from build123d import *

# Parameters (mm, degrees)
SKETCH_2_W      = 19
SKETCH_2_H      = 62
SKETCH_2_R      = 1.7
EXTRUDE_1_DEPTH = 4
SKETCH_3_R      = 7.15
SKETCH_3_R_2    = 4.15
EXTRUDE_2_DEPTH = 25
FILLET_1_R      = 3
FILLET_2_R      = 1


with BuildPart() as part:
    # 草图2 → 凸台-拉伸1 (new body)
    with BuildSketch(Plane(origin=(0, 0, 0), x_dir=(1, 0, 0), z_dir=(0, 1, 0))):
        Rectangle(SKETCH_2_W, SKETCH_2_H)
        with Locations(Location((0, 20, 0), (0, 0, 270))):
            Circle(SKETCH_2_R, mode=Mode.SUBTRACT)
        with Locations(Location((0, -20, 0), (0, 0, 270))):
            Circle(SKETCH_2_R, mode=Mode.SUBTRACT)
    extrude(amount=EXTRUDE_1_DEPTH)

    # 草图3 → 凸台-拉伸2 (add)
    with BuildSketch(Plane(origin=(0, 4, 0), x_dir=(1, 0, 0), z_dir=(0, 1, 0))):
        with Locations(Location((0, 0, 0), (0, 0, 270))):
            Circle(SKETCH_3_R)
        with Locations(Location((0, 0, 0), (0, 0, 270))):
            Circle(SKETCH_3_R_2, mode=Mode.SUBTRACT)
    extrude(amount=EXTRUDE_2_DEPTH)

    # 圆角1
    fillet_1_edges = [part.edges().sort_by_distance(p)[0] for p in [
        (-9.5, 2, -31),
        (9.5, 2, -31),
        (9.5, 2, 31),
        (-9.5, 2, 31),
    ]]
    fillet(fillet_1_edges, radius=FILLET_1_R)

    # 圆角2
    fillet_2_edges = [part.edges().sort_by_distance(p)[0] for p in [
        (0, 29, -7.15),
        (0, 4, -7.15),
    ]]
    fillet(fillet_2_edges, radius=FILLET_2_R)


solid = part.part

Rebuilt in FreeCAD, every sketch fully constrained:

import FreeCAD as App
import Part
import Sketcher

V = App.Vector


def edges_at(feature, points):
    """Names of the edges that pass closest to the given points."""
    edges = feature.Shape.Edges
    near = lambda p: min(range(len(edges)), key=lambda i: edges[i].distToShape(Part.Vertex(*p))[0])
    return sorted({f"Edge{near(p) + 1}" for p in points})


def add_polygon(sketch, points):
    """Adds a closed chain of lines whose ends are joined by coincident constraints."""
    first, n = sketch.GeometryCount, len(points)
    for a, b in zip(points, points[1:] + points[:1]):
        sketch.addGeometry(Part.LineSegment(App.Vector(*a, 0), App.Vector(*b, 0)), False)
    for i in range(n):
        sketch.addConstraint(Sketcher.Constraint("Coincident", first + i, 2, first + (i + 1) % n, 1))

doc = App.newDocument("Part")
body = doc.addObject("PartDesign::Body", "Body")

sketch1 = body.newObject("Sketcher::SketchObject", "Sketch")
sketch1.AttachmentSupport = (doc.getObject("XZ_Plane"), [""])
sketch1.MapMode = "FlatFace"
add_polygon(sketch1, [(-9.5, -31), (-9.5, 31), (9.5, 31), (9.5, -31)])
sketch1.addGeometry(Part.Circle(V(0, 20, 0), V(0, 0, 1), 1.7), False)
sketch1.addGeometry(Part.Circle(V(0, -20, 0), V(0, 0, 1), 1.7), False)
sketch1.addConstraint(Sketcher.Constraint("Vertical", 0))
sketch1.addConstraint(Sketcher.Constraint("Horizontal", 1))
sketch1.addConstraint(Sketcher.Constraint("Vertical", 2))
sketch1.addConstraint(Sketcher.Constraint("Horizontal", 3))
sketch1.addConstraint(Sketcher.Constraint("Equal", 4, 5))
sketch1.addConstraint(Sketcher.Constraint("Symmetric", 4, 3, 5, 3, -1, 1))
sketch1.addConstraint(Sketcher.Constraint("Symmetric", 0, 2, 2, 2, -1, 1))
sketch1.addConstraint(Sketcher.Constraint("PointOnObject", 4, 3, -2))
sketch1.addConstraint(Sketcher.Constraint("Diameter", 4, 3.4))
sketch1.addConstraint(Sketcher.Constraint("DistanceX", 1, 1, 1, 2, 19.0))
sketch1.addConstraint(Sketcher.Constraint("DistanceY", 0, 1, 0, 2, 62.0))
sketch1.addConstraint(Sketcher.Constraint("DistanceY", -1, 1, 4, 3, 20.0))
pad1 = body.newObject("PartDesign::Pad", "Pad")
pad1.Profile = sketch1
pad1.Length = 4
pad1.Reversed = True

sketch2 = body.newObject("Sketcher::SketchObject", "Sketch001")
sketch2.AttachmentSupport = (doc.getObject("XZ_Plane"), [""])
sketch2.MapMode = "FlatFace"
sketch2.AttachmentOffset = App.Placement(V(0, 0, -4), App.Rotation())
sketch2.addGeometry(Part.Circle(V(0, 0, 0), V(0, 0, 1), 7.2), False)
sketch2.addGeometry(Part.Circle(V(0, 0, 0), V(0, 0, 1), 4.2), False)
sketch2.addConstraint(Sketcher.Constraint("Coincident", 0, 3, -1, 1))
sketch2.addConstraint(Sketcher.Constraint("Coincident", 1, 3, -1, 1))
sketch2.addConstraint(Sketcher.Constraint("Diameter", 0, 14.3))
sketch2.addConstraint(Sketcher.Constraint("Diameter", 1, 8.3))
pad2 = body.newObject("PartDesign::Pad", "Pad001")
pad2.Profile = sketch2
pad2.Length = 25
pad2.Reversed = True
doc.recompute()

fillet = body.newObject("PartDesign::Fillet", "Fillet")
fillet.Base = (pad2, edges_at(pad2, [
    (-9.5, 2, -31),
    (9.5, 2, -31),
    (9.5, 2, 31),
    (-9.5, 2, 31),
]))
fillet.Radius = 3
doc.recompute()

fillet2 = body.newObject("PartDesign::Fillet", "Fillet001")
fillet2.Base = (fillet, edges_at(fillet, [(0, 29, -7.15), (0, 4, -7.15)]))
fillet2.Radius = 1

doc.recompute()
